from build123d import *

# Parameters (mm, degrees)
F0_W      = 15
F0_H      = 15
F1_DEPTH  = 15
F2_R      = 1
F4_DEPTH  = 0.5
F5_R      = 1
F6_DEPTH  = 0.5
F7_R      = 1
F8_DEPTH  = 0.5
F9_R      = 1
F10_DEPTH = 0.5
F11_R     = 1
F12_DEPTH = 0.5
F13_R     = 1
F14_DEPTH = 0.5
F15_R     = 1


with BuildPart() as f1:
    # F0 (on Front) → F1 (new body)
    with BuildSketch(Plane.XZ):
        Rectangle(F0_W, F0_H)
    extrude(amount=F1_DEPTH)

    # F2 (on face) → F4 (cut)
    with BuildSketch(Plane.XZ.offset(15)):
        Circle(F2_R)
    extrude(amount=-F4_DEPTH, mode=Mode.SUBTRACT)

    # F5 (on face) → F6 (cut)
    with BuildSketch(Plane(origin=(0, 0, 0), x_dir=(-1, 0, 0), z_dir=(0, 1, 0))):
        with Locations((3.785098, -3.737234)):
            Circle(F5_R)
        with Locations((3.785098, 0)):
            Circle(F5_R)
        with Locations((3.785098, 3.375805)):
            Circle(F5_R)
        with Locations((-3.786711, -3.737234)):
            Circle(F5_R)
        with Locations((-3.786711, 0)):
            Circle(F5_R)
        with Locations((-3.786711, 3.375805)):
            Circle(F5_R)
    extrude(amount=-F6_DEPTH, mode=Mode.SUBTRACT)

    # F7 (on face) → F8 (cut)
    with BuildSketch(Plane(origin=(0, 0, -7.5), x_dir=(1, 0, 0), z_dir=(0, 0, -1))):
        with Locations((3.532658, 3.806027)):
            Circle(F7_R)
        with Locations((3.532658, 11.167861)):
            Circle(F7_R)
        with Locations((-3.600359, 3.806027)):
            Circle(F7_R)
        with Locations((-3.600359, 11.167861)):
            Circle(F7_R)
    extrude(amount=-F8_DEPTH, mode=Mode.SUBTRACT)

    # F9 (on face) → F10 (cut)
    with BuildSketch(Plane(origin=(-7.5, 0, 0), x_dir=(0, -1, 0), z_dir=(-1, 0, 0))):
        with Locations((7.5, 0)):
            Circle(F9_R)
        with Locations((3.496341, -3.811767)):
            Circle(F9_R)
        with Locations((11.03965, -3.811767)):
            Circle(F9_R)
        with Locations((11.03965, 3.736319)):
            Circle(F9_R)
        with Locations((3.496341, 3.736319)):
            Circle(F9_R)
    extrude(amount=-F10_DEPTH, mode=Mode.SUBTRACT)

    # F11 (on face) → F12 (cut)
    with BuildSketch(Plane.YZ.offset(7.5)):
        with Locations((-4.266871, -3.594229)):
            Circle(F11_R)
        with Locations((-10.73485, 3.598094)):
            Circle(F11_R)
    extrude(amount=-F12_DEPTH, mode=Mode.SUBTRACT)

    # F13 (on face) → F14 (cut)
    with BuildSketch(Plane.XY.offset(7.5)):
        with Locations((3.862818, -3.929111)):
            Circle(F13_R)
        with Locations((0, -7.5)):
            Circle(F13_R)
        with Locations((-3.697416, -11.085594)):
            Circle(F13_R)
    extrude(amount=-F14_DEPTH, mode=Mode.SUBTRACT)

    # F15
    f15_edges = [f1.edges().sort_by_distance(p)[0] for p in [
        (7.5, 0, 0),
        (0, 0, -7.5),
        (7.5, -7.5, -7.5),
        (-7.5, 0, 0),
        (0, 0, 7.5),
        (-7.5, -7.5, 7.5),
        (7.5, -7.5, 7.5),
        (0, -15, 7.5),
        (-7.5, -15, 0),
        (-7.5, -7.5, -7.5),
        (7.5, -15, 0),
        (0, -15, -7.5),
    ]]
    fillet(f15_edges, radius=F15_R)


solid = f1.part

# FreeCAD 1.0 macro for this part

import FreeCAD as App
import Part
import Sketcher
from FreeCAD import Vector


def edges_at(feature, points):
    """Names of the edges that pass closest to the given points."""
    edges = feature.Shape.Edges
    near = lambda p: min(range(len(edges)), key=lambda i: edges[i].distToShape(Part.Vertex(*p))[0])
    return sorted({f"Edge{near(p) + 1}" for p in points})


def add_polygon(sketch, points):
    """Adds a closed chain of lines whose ends are joined by coincident constraints."""
    first, n = sketch.GeometryCount, len(points)
    for a, b in zip(points, points[1:] + points[:1]):
        sketch.addGeometry(Part.LineSegment(App.Vector(*a, 0), App.Vector(*b, 0)), False)
    for i in range(n):
        sketch.addConstraint(Sketcher.Constraint("Coincident", first + i, 2, first + (i + 1) % n, 1))

doc = App.newDocument("Part")
body = doc.addObject("PartDesign::Body", "Body")

# Sketch on XZ plane
sketch1 = body.newObject("Sketcher::SketchObject", "Sketch")
sketch1.AttachmentSupport = (doc.getObject("XZ_Plane"), [""])
sketch1.MapMode = "FlatFace"
add_polygon(sketch1, [(-8, 8), (-8, -8), (8, -8), (8, 8)])  # lines 0-3
sketch1.addConstraint([
    Sketcher.Constraint("Vertical", 0),
    Sketcher.Constraint("Horizontal", 1),
    Sketcher.Constraint("Vertical", 2),
    Sketcher.Constraint("Horizontal", 3),
    Sketcher.Constraint("Symmetric", 0, 2, 2, 2, -1, 1),
    Sketcher.Constraint("Equal", 3, 0),
    Sketcher.Constraint("DistanceX", 1, 1, 1, 2, 15.0),
])
pad1 = body.newObject("PartDesign::Pad", "Pad")
pad1.Profile = sketch1
pad1.Length = 15

# Sketch on XZ plane
sketch2 = body.newObject("Sketcher::SketchObject", "Sketch001")
sketch2.AttachmentSupport = (doc.getObject("XZ_Plane"), [""])
sketch2.MapMode = "FlatFace"
sketch2.AttachmentOffset = App.Placement(Vector(0, 0, 15), App.Rotation())
sketch2.addGeometry(Part.Circle(Vector(0, 0, 0), Vector(0, 0, 1), 1), False)
sketch2.addConstraint([
    Sketcher.Constraint("Coincident", 0, 3, -1, 1),
    Sketcher.Constraint("Diameter", 0, 2.0),
])
pocket1 = body.newObject("PartDesign::Pocket", "Pocket")
pocket1.Profile = sketch2
pocket1.Length = 0.5

# Sketch on XZ plane
sketch3 = body.newObject("Sketcher::SketchObject", "Sketch002")
sketch3.AttachmentSupport = (doc.getObject("XZ_Plane"), [""])
sketch3.MapMode = "FlatFace"
sketch3.addGeometry([
    Part.Circle(Vector(-3.8, -3.7, 0), Vector(0, 0, 1), 1),  # 0
    Part.Circle(Vector(-3.8, 0, 0), Vector(0, 0, 1), 1),  # 1
    Part.Circle(Vector(-3.8, 3.4, 0), Vector(0, 0, 1), 1),  # 2
    Part.Circle(Vector(3.8, -3.7, 0), Vector(0, 0, 1), 1),  # 3
    Part.Circle(Vector(3.8, 0, 0), Vector(0, 0, 1), 1),  # 4
    Part.Circle(Vector(3.8, 3.4, 0), Vector(0, 0, 1), 1),  # 5
], False)
sketch3.addConstraint([
    Sketcher.Constraint("Equal", 0, 1),
    Sketcher.Constraint("Equal", 1, 2),
    Sketcher.Constraint("Equal", 2, 3),
    Sketcher.Constraint("Equal", 3, 4),
    Sketcher.Constraint("Equal", 4, 5),
    Sketcher.Constraint("PointOnObject", 1, 3, -1),
    Sketcher.Constraint("PointOnObject", 4, 3, -1),
    Sketcher.Constraint("Horizontal", 0, 3, 3, 3),
    Sketcher.Constraint("Horizontal", 2, 3, 5, 3),
    Sketcher.Constraint("Vertical", 0, 3, 1, 3),
    Sketcher.Constraint("Vertical", 1, 3, 2, 3),
    Sketcher.Constraint("Vertical", 3, 3, 4, 3),
    Sketcher.Constraint("Vertical", 4, 3, 5, 3),
    Sketcher.Constraint("Diameter", 0, 2.0),
    Sketcher.Constraint("DistanceX", 0, 3, -1, 1, 3.785098),
    Sketcher.Constraint("DistanceX", -1, 1, 3, 3, 3.786711),
    Sketcher.Constraint("DistanceY", 0, 3, 2, 3, 7.113039),
    Sketcher.Constraint("DistanceY", 0, 3, -1, 1, 3.737234),
])
pocket2 = body.newObject("PartDesign::Pocket", "Pocket001")
pocket2.Profile = sketch3
pocket2.Length = 0.5
pocket2.Reversed = True

# Sketch on XY plane
sketch4 = body.newObject("Sketcher::SketchObject", "Sketch003")
sketch4.AttachmentSupport = (doc.getObject("XY_Plane"), [""])
sketch4.MapMode = "FlatFace"
sketch4.AttachmentOffset = App.Placement(Vector(0, 0, -7.5), App.Rotation())
sketch4.addGeometry([
    Part.Circle(Vector(3.5, -3.8, 0), Vector(0, 0, 1), 1),
    Part.Circle(Vector(3.5, -11.2, 0), Vector(0, 0, 1), 1),
    Part.Circle(Vector(-3.6, -3.8, 0), Vector(0, 0, 1), 1),
    Part.Circle(Vector(-3.6, -11.2, 0), Vector(0, 0, 1), 1),
], False)
sketch4.addConstraint([
    Sketcher.Constraint("Equal", 0, 1),
    Sketcher.Constraint("Equal", 1, 2),
    Sketcher.Constraint("Equal", 2, 3),
    Sketcher.Constraint("Horizontal", 0, 3, 2, 3),
    Sketcher.Constraint("Horizontal", 1, 3, 3, 3),
    Sketcher.Constraint("Vertical", 0, 3, 1, 3),
    Sketcher.Constraint("Vertical", 2, 3, 3, 3),
    Sketcher.Constraint("Diameter", 0, 2.0),
    Sketcher.Constraint("DistanceX", -1, 1, 0, 3, 3.532658),
    Sketcher.Constraint("DistanceY", 1, 3, -1, 1, 11.167861),
    Sketcher.Constraint("DistanceX", 2, 3, -1, 1, 3.600359),
    Sketcher.Constraint("DistanceY", 0, 3, -1, 1, 3.806027),
])
pocket3 = body.newObject("PartDesign::Pocket", "Pocket002")
pocket3.Profile = sketch4
pocket3.Length = 0.5
pocket3.Reversed = True

# Sketch on YZ plane
sketch5 = body.newObject("Sketcher::SketchObject", "Sketch004")
sketch5.AttachmentSupport = (doc.getObject("YZ_Plane"), [""])
sketch5.MapMode = "FlatFace"
sketch5.AttachmentOffset = App.Placement(Vector(0, 0, -7.5), App.Rotation())
sketch5.addGeometry([
    Part.Circle(Vector(-7.5, 0, 0), Vector(0, 0, 1), 1),  # 0
    Part.Circle(Vector(-3.5, -3.8, 0), Vector(0, 0, 1), 1),  # 1
    Part.Circle(Vector(-11, -3.8, 0), Vector(0, 0, 1), 1),  # 2
    Part.Circle(Vector(-11, 3.7, 0), Vector(0, 0, 1), 1),  # 3
    Part.Circle(Vector(-3.5, 3.7, 0), Vector(0, 0, 1), 1),  # 4
], False)
sketch5.addConstraint([
    Sketcher.Constraint("Equal", 0, 1),
    Sketcher.Constraint("Equal", 1, 2),
    Sketcher.Constraint("Equal", 2, 3),
    Sketcher.Constraint("Equal", 3, 4),
    Sketcher.Constraint("PointOnObject", 0, 3, -1),
    Sketcher.Constraint("Horizontal", 1, 3, 2, 3),
    Sketcher.Constraint("Horizontal", 3, 3, 4, 3),
    Sketcher.Constraint("Vertical", 2, 3, 3, 3),
    Sketcher.Constraint("Vertical", 1, 3, 4, 3),
    Sketcher.Constraint("Diameter", 0, 2.0),
    Sketcher.Constraint("DistanceX", 0, 3, -1, 1, 7.5),
    Sketcher.Constraint("DistanceX", 1, 3, -1, 1, 3.496341),
    Sketcher.Constraint("DistanceX", 2, 3, -1, 1, 11.03965),
    Sketcher.Constraint("DistanceY", -1, 1, 3, 3, 3.736319),
    Sketcher.Constraint("DistanceY", 1, 3, -1, 1, 3.811767),
])
pocket4 = body.newObject("PartDesign::Pocket", "Pocket003")
pocket4.Profile = sketch5
pocket4.Length = 0.5
pocket4.Reversed = True

# Sketch on YZ plane
sketch6 = body.newObject("Sketcher::SketchObject", "Sketch005")
sketch6.AttachmentSupport = (doc.getObject("YZ_Plane"), [""])
sketch6.MapMode = "FlatFace"
sketch6.AttachmentOffset = App.Placement(Vector(0, 0, 7.5), App.Rotation())
sketch6.addGeometry([
    Part.Circle(Vector(-4.3, -3.6, 0), Vector(0, 0, 1), 1),
    Part.Circle(Vector(-10.7, 3.6, 0), Vector(0, 0, 1), 1),
], False)
sketch6.addConstraint([
    Sketcher.Constraint("Equal", 0, 1),
    Sketcher.Constraint("Diameter", 0, 2.0),
    Sketcher.Constraint("DistanceX", 0, 3, -1, 1, 4.266871),
    Sketcher.Constraint("DistanceY", 0, 3, -1, 1, 3.594229),
    Sketcher.Constraint("DistanceX", 1, 3, -1, 1, 10.73485),
    Sketcher.Constraint("DistanceY", -1, 1, 1, 3, 3.598094),
])
pocket5 = body.newObject("PartDesign::Pocket", "Pocket004")
pocket5.Profile = sketch6
pocket5.Length = 0.5

# Sketch on XY plane
sketch7 = body.newObject("Sketcher::SketchObject", "Sketch006")
sketch7.AttachmentSupport = (doc.getObject("XY_Plane"), [""])
sketch7.MapMode = "FlatFace"
sketch7.AttachmentOffset = App.Placement(Vector(0, 0, 7.5), App.Rotation())
sketch7.addGeometry([
    Part.Circle(Vector(3.9, -3.9, 0), Vector(0, 0, 1), 1),
    Part.Circle(Vector(0, -7.5, 0), Vector(0, 0, 1), 1),
    Part.Circle(Vector(-3.7, -11.1, 0), Vector(0, 0, 1), 1),
], False)
sketch7.addConstraint([
    Sketcher.Constraint("Equal", 0, 1),
    Sketcher.Constraint("Equal", 1, 2),
    Sketcher.Constraint("PointOnObject", 1, 3, -2),
    Sketcher.Constraint("Diameter", 0, 2.0),
    Sketcher.Constraint("DistanceY", 1, 3, -1, 1, 7.5),
    Sketcher.Constraint("DistanceY", 0, 3, -1, 1, 3.929111),
    Sketcher.Constraint("DistanceX", -1, 1, 0, 3, 3.862818),
    Sketcher.Constraint("DistanceX", 2, 3, -1, 1, 3.697416),
    Sketcher.Constraint("DistanceY", 2, 3, -1, 1, 11.085594),
])
pocket6 = body.newObject("PartDesign::Pocket", "Pocket005")
pocket6.Profile = sketch7
pocket6.Length = 0.5
doc.recompute()

fillet = body.newObject("PartDesign::Fillet", "Fillet")
fillet.Base = (pocket6, edges_at(pocket6, [
    (7.5, 0, 0),
    (0, 0, -7.5),
    (7.5, -7.5, -7.5),
    (-7.5, 0, 0),
    (0, 0, 7.5),
    (-7.5, -7.5, 7.5),
    (7.5, -7.5, 7.5),
    (0, -15, 7.5),
    (-7.5, -15, 0),
    (-7.5, -7.5, -7.5),
    (7.5, -15, 0),
    (0, -15, -7.5),
]))
fillet.Radius = 1

doc.recompute()
